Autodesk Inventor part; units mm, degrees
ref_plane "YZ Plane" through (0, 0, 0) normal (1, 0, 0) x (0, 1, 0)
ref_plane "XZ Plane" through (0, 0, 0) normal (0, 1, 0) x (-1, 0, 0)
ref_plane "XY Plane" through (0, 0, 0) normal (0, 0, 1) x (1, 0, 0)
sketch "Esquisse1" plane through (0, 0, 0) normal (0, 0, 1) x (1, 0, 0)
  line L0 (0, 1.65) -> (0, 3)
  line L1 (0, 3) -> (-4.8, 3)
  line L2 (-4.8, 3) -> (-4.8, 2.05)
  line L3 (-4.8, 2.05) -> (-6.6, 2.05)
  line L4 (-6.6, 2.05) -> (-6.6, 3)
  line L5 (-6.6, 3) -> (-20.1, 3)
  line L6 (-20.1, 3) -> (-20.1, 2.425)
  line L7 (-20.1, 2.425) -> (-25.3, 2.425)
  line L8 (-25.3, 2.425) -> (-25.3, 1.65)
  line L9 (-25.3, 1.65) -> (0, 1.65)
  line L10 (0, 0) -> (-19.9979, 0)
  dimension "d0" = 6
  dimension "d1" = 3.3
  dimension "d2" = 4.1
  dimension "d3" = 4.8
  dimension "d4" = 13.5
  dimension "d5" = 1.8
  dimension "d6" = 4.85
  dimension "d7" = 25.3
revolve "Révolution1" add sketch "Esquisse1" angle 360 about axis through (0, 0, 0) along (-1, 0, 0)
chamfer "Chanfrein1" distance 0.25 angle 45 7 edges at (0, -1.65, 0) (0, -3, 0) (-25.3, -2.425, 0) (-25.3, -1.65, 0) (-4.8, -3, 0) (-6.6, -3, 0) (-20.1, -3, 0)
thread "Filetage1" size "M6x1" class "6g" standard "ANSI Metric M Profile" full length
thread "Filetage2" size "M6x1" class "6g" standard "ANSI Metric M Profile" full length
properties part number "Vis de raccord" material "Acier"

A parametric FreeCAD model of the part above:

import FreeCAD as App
import Part
import Sketcher

V = App.Vector


def edges_at(feature, points):
    """Names of the edges that pass closest to the given points."""
    edges = feature.Shape.Edges
    near = lambda p: min(range(len(edges)), key=lambda i: edges[i].distToShape(Part.Vertex(*p))[0])
    return sorted({f"Edge{near(p) + 1}" for p in points})

doc = App.newDocument("Part")
body = doc.addObject("PartDesign::Body", "Body")

# Sketch on XY plane
sketch1 = body.newObject("Sketcher::SketchObject", "Sketch")
sketch1.AttachmentSupport = (doc.getObject("XY_Plane"), [""])
sketch1.MapMode = "FlatFace"
sketch1.addGeometry([
    Part.LineSegment(V(-25.3, 1.65, 0), V(0, 1.65, 0)),  # 0
    Part.LineSegment(V(0, 1.65, 0), V(0, 3, 0)),  # 1
    Part.LineSegment(V(0, 3, 0), V(-4.8, 3, 0)),  # 2
    Part.LineSegment(V(-4.8, 3, 0), V(-4.8, 2.05, 0)),  # 3
    Part.LineSegment(V(-4.8, 2.05, 0), V(-6.6, 2.05, 0)),  # 4
    Part.LineSegment(V(-6.6, 2.05, 0), V(-6.6, 3, 0)),  # 5
    Part.LineSegment(V(-6.6, 3, 0), V(-20.1, 3, 0)),  # 6
    Part.LineSegment(V(-20.1, 3, 0), V(-20.1, 2.425, 0)),  # 7
    Part.LineSegment(V(-20.1, 2.425, 0), V(-25.3, 2.425, 0)),  # 8
    Part.LineSegment(V(-25.3, 2.425, 0), V(-25.3, 1.65, 0)),  # 9
], False)
sketch1.addConstraint([
    Sketcher.Constraint("Coincident", 0, 2, 1, 1),
    Sketcher.Constraint("Coincident", 1, 2, 2, 1),
    Sketcher.Constraint("Coincident", 2, 2, 3, 1),
    Sketcher.Constraint("Coincident", 3, 2, 4, 1),
    Sketcher.Constraint("Coincident", 4, 2, 5, 1),
    Sketcher.Constraint("Coincident", 5, 2, 6, 1),
    Sketcher.Constraint("Coincident", 6, 2, 7, 1),
    Sketcher.Constraint("Coincident", 7, 2, 8, 1),
    Sketcher.Constraint("Coincident", 8, 2, 9, 1),
    Sketcher.Constraint("Coincident", 9, 2, 0, 1),
    Sketcher.Constraint("Horizontal", 0),
    Sketcher.Constraint("Vertical", 1),
    Sketcher.Constraint("Horizontal", 2),
    Sketcher.Constraint("Vertical", 3),
    Sketcher.Constraint("Horizontal", 4),
    Sketcher.Constraint("Vertical", 5),
    Sketcher.Constraint("Horizontal", 6),
    Sketcher.Constraint("Vertical", 7),
    Sketcher.Constraint("Horizontal", 8),
    Sketcher.Constraint("Vertical", 9),
    Sketcher.Constraint("PointOnObject", 0, 2, -2),
    Sketcher.Constraint("Horizontal", 2, 2, 5, 2),
    Sketcher.Constraint("DistanceX", 0, 1, 0, 2, 25.3),
    Sketcher.Constraint("DistanceX", 2, 2, 2, 1, 4.8),
    Sketcher.Constraint("DistanceX", 4, 2, 4, 1, 1.8),
    Sketcher.Constraint("DistanceX", 6, 2, 6, 1, 13.5),
    Sketcher.Constraint("DistanceY", -1, 1, 1, 2, 3.0),
    Sketcher.Constraint("DistanceY", 1, 1, 1, 2, 1.35),
    Sketcher.Constraint("DistanceY", 3, 2, 3, 1, 0.95),
    Sketcher.Constraint("DistanceY", 7, 2, 7, 1, 0.575),
])
revolution = body.newObject("PartDesign::Revolution", "Revolution")
revolution.Profile = sketch1
revolution.ReferenceAxis = (sketch1, ["H_Axis"])
revolution.Angle = 360
doc.recompute()

chamfer = body.newObject("PartDesign::Chamfer", "Chamfer")
chamfer.Base = (revolution, edges_at(revolution, [
    (0, -1.65, 0),
    (0, -3, 0),
    (-25.3, -2.425, 0),
    (-25.3, -1.65, 0),
    (-4.8, -3, 0),
    (-6.6, -3, 0),
    (-20.1, -3, 0),
]))
chamfer.Size = 0.25

doc.recompute()
